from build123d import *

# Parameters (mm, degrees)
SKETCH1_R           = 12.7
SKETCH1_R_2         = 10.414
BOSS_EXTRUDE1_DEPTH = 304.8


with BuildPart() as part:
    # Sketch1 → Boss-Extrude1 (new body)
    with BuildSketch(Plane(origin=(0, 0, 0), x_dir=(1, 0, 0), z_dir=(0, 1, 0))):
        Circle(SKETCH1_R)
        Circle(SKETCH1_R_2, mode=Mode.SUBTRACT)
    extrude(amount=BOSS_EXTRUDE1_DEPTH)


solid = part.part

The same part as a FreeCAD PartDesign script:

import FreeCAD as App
import Part
import Sketcher
Q = App.Units.Quantity

doc = App.newDocument("Part")
body = doc.addObject("PartDesign::Body", "Body")

sketch1 = body.newObject("Sketcher::SketchObject", "Sketch")
sketch1.AttachmentSupport = (doc.getObject("XZ_Plane"), [""])
sketch1.MapMode = "FlatFace"
sketch1.addGeometry(Part.Circle(App.Vector(0, 0, 0), App.Vector(0, 0, 1), 13), False)
sketch1.addGeometry(Part.Circle(App.Vector(0, 0, 0), App.Vector(0, 0, 1), 10), False)
sketch1.addConstraint(Sketcher.Constraint("Coincident", 0, 3, -1, 1))
sketch1.addConstraint(Sketcher.Constraint("Coincident", 1, 3, -1, 1))
sketch1.addConstraint(Sketcher.Constraint("Diameter", 0, Q("1 in")))
sketch1.addConstraint(Sketcher.Constraint("Diameter", 1, Q("0.82 in")))
pad1 = body.newObject("PartDesign::Pad", "Pad")
pad1.Profile = sketch1
pad1.Length = Q("12 in")
pad1.Reversed = True

doc.recompute()
